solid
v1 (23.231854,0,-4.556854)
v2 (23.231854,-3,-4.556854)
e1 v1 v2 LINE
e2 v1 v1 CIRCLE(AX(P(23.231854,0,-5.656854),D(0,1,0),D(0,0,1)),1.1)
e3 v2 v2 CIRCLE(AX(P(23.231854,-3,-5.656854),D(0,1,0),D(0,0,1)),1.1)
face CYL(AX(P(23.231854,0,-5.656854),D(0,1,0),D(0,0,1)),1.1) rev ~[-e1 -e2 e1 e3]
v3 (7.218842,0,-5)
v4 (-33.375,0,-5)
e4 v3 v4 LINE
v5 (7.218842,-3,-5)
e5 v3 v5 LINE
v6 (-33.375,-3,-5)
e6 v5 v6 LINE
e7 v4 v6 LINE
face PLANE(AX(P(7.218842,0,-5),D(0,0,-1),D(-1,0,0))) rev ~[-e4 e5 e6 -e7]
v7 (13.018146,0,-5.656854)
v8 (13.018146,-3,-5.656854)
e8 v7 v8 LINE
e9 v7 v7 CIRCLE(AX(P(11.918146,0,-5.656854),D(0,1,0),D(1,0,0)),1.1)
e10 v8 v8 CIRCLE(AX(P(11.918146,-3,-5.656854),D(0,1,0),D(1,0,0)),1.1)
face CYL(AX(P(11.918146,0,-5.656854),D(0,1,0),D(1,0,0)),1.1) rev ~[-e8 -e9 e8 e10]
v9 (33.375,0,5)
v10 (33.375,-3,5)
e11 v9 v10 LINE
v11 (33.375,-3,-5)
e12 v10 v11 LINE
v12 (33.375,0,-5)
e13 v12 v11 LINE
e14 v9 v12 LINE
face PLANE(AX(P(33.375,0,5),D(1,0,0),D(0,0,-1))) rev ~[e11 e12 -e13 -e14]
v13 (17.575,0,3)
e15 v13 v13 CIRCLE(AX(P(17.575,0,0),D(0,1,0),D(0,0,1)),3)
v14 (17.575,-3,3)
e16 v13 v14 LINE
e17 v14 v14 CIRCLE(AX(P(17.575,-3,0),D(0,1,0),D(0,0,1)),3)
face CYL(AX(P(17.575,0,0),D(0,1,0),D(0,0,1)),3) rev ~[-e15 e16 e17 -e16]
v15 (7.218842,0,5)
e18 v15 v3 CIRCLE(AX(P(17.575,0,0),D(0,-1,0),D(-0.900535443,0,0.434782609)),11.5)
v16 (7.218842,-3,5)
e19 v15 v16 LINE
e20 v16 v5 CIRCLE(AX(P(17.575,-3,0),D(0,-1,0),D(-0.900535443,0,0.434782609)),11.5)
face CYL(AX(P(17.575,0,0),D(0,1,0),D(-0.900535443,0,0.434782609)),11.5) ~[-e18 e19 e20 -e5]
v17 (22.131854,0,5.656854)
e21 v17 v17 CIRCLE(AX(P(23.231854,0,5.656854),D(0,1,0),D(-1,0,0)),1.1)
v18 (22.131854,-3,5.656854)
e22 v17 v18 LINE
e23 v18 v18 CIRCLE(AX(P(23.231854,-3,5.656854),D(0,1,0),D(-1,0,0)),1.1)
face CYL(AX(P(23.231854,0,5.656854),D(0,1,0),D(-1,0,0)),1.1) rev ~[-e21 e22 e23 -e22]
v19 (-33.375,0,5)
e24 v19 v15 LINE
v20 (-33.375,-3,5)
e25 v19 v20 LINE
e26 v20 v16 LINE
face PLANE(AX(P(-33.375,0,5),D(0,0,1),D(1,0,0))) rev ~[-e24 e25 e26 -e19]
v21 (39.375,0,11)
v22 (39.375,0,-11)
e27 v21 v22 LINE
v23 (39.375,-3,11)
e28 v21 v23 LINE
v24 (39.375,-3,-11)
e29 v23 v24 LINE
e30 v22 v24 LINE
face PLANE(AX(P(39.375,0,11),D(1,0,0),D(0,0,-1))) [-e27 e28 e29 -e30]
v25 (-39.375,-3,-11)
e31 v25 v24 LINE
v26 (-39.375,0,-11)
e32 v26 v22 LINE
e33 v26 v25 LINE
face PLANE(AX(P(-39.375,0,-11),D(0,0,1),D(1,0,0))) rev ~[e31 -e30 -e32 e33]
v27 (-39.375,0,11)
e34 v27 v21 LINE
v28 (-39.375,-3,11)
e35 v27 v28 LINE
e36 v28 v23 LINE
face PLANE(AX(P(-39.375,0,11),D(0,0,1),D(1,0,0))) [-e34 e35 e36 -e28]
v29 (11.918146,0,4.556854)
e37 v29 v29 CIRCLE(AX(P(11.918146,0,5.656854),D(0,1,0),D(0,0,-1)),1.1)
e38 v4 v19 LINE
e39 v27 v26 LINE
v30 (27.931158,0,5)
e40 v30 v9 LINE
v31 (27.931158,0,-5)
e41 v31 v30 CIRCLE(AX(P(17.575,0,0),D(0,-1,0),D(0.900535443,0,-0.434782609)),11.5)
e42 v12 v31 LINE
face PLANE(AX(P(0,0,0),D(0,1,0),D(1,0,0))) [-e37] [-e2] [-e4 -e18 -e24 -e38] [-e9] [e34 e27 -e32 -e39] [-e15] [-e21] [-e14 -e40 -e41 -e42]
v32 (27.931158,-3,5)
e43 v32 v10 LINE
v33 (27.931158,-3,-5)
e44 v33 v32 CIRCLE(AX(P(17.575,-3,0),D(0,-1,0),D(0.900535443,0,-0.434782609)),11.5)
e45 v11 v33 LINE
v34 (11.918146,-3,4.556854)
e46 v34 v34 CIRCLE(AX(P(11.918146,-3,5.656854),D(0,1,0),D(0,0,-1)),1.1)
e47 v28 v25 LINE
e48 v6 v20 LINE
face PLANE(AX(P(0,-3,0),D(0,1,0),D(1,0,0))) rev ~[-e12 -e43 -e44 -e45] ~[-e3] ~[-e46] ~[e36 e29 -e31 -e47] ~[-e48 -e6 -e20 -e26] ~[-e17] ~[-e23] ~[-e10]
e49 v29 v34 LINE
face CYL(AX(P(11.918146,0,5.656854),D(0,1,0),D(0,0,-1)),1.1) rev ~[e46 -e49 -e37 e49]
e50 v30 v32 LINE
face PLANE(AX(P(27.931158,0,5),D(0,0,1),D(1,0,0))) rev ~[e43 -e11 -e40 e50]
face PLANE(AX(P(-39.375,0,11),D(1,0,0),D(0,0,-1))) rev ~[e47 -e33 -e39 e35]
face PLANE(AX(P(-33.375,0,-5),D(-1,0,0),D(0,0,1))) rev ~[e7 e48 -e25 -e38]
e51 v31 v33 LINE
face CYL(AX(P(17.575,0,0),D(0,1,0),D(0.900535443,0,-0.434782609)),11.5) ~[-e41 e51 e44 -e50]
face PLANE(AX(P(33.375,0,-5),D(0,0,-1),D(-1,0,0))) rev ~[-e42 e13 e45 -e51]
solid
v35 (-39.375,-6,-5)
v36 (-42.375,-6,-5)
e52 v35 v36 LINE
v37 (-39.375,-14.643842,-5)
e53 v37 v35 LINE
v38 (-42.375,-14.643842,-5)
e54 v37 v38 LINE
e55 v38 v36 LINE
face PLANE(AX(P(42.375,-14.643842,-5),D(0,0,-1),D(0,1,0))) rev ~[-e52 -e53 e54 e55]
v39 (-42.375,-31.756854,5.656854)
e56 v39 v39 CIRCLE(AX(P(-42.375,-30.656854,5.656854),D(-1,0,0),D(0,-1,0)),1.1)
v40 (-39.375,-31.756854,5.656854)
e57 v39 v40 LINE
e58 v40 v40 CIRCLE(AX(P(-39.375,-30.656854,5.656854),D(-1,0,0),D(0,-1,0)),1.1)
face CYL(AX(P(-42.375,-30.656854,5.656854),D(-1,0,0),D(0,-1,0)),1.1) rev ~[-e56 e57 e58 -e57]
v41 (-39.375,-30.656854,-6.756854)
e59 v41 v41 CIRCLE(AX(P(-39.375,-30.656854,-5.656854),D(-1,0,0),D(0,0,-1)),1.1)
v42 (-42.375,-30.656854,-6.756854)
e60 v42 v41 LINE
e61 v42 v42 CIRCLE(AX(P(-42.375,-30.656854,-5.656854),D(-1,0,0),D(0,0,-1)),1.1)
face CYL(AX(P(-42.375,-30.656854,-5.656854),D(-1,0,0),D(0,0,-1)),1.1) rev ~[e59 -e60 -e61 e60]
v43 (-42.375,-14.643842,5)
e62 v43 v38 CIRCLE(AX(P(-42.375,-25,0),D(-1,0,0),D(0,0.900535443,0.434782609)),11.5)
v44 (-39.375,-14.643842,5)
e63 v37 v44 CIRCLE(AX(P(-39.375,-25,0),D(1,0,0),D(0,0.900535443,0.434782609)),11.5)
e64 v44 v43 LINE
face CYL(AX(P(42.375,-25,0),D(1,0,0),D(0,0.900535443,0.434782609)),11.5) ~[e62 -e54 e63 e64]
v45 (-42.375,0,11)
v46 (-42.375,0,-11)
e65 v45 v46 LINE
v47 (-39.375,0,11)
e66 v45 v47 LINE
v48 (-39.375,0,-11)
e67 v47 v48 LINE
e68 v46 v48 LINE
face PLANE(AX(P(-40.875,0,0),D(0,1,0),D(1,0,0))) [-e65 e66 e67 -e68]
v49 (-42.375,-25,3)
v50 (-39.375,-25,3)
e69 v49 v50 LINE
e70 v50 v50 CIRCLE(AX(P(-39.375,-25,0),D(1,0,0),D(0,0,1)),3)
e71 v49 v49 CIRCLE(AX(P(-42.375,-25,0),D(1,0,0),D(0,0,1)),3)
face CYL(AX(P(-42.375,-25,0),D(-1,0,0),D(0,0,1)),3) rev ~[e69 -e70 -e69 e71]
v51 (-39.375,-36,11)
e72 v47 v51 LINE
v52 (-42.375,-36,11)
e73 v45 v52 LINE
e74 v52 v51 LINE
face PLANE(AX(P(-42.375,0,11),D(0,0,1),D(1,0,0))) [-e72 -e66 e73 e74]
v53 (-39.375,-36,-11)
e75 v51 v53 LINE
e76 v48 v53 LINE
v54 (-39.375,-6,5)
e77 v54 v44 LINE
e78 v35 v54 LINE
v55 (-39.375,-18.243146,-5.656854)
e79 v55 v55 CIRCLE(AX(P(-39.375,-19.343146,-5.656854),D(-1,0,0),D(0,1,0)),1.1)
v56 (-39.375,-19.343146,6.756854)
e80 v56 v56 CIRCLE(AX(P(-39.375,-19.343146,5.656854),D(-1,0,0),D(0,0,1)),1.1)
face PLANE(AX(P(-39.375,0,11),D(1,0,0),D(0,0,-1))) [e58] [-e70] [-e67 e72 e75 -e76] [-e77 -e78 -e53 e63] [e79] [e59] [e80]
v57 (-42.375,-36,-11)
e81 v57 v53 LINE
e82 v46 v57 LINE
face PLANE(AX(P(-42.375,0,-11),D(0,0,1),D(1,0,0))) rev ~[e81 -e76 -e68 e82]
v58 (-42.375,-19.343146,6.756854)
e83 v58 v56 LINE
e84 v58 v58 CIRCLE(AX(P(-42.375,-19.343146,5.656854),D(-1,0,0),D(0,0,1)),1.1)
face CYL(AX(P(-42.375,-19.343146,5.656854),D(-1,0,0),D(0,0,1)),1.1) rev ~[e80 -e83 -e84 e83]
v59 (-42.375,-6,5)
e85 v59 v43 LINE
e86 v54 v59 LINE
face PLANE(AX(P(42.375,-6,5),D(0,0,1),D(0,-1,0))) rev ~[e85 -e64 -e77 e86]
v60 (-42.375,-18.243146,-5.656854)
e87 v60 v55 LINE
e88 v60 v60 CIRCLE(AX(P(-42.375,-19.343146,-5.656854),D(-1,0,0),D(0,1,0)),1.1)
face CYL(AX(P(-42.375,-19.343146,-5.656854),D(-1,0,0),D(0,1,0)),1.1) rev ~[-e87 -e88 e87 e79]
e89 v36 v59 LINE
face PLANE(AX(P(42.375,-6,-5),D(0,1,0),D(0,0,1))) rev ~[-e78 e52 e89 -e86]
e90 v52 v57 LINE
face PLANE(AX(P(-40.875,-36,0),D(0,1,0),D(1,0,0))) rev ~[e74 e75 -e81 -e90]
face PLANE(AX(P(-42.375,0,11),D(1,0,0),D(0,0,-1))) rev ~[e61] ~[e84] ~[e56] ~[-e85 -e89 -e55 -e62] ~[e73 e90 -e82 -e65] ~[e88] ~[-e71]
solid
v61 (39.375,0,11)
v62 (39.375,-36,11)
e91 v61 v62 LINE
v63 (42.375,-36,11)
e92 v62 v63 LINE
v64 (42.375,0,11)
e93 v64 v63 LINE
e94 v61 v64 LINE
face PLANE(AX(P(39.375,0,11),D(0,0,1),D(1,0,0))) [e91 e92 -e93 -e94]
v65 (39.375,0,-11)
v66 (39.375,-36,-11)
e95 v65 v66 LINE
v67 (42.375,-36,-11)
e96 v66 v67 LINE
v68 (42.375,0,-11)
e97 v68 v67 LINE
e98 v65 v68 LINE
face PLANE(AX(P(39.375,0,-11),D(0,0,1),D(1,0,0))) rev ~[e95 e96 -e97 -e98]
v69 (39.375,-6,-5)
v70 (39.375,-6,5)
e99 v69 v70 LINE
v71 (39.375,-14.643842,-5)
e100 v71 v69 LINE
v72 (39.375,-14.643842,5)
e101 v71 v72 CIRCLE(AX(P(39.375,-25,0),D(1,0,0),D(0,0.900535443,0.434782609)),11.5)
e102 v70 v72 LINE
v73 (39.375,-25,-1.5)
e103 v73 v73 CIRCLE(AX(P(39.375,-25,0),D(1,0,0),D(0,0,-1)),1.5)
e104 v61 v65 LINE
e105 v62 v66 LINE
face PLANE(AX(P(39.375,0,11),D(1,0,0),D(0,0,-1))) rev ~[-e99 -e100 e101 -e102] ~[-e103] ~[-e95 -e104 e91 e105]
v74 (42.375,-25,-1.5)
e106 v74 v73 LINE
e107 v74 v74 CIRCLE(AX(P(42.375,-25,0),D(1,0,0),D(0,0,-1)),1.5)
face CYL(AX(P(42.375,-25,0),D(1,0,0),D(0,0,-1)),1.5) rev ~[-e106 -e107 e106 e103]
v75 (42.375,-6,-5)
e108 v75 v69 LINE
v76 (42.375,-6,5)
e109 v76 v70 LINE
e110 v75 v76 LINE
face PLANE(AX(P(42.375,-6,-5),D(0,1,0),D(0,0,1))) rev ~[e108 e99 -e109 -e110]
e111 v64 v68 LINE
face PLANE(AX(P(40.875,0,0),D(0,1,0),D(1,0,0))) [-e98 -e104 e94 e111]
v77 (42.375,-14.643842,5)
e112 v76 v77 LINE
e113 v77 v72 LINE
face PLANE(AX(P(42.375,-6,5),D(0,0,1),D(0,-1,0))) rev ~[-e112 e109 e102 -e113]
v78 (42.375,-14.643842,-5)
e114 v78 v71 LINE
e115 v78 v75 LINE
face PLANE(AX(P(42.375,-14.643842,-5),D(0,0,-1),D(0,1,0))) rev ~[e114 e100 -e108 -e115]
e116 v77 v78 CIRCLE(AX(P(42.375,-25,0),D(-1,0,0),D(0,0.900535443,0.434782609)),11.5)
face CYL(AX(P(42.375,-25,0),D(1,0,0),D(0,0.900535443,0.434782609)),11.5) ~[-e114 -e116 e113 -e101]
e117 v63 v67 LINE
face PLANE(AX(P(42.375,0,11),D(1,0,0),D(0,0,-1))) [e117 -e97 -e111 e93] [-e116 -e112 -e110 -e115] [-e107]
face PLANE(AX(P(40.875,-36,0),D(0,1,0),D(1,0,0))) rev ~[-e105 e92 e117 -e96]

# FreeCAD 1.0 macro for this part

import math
import FreeCAD as App
import Part
import Sketcher

V = App.Vector
Q = App.Units.Quantity


def add_polygon(sketch, points):
    """Adds a closed chain of lines whose ends are joined by coincident constraints."""
    first, n = sketch.GeometryCount, len(points)
    for a, b in zip(points, points[1:] + points[:1]):
        sketch.addGeometry(Part.LineSegment(App.Vector(*a, 0), App.Vector(*b, 0)), False)
    for i in range(n):
        sketch.addConstraint(Sketcher.Constraint("Coincident", first + i, 2, first + (i + 1) % n, 1))

doc = App.newDocument("Part")
body = doc.addObject("PartDesign::Body", "Body")

sketch1 = body.newObject("Sketcher::SketchObject", "Sketch")
sketch1.AttachmentSupport = (doc.getObject("XZ_Plane"), [""])
sketch1.MapMode = "FlatFace"
add_polygon(sketch1, [(-39.4, -11), (-39.4, 11), (39.4, 11), (39.4, -11)])
sketch1.addGeometry(Part.Circle(V(17.6, 0, 0), V(0, 0, 1), 3), False)
sketch1.addGeometry(Part.LineSegment(V(27.9, -5, 0), V(33.4, -5, 0)), False)
sketch1.addGeometry(Part.LineSegment(V(33.4, -5, 0), V(33.4, 5, 0)), False)
sketch1.addGeometry(Part.LineSegment(V(33.4, 5, 0), V(27.9, 5, 0)), False)
sketch1.addGeometry(Part.ArcOfCircle(Part.Circle(V(17.6, 0, 0), V(0, 0, 1), 11.5), math.radians(-26), math.radians(26)), False)
sketch1.addGeometry(Part.LineSegment(V(-33.4, 5, 0), V(-33.4, -5, 0)), False)
sketch1.addGeometry(Part.LineSegment(V(-33.4, -5, 0), V(7.2, -5, 0)), False)
sketch1.addGeometry(Part.ArcOfCircle(Part.Circle(V(17.6, 0, 0), V(0, 0, 1), 11.5), math.radians(154), math.radians(206)), False)
sketch1.addGeometry(Part.LineSegment(V(7.2, 5, 0), V(-33.4, 5, 0)), False)
sketch1.addConstraint([
    Sketcher.Constraint("Coincident", 5, 2, 6, 1),
    Sketcher.Constraint("Coincident", 6, 2, 7, 1),
    Sketcher.Constraint("Coincident", 7, 2, 8, 2),
    Sketcher.Constraint("Coincident", 8, 1, 5, 1),
    Sketcher.Constraint("Coincident", 9, 2, 10, 1),
    Sketcher.Constraint("Coincident", 10, 2, 11, 2),
    Sketcher.Constraint("Coincident", 11, 1, 12, 1),
    Sketcher.Constraint("Coincident", 12, 2, 9, 1),
    Sketcher.Constraint("Vertical", 0),
    Sketcher.Constraint("Horizontal", 1),
    Sketcher.Constraint("Vertical", 2),
    Sketcher.Constraint("Horizontal", 3),
    Sketcher.Constraint("Horizontal", 5),
    Sketcher.Constraint("Vertical", 6),
    Sketcher.Constraint("Horizontal", 7),
    Sketcher.Constraint("Vertical", 9),
    Sketcher.Constraint("Horizontal", 10),
    Sketcher.Constraint("Horizontal", 12),
    Sketcher.Constraint("Coincident", 8, 3, 4, 3),
    Sketcher.Constraint("Coincident", 11, 3, 4, 3),
    Sketcher.Constraint("Equal", 8, 11),
    Sketcher.Constraint("Symmetric", 0, 2, 2, 2, -1, 1),
    Sketcher.Constraint("Symmetric", 6, 2, 9, 2, -1, 1),
    Sketcher.Constraint("Symmetric", 7, 2, 8, 1, -1),
    Sketcher.Constraint("Horizontal", 7, 2, 11, 1),
    Sketcher.Constraint("Diameter", 4, Q("6 mm")),
    Sketcher.Constraint("Radius", 8, Q("11.5 mm")),
    Sketcher.Constraint("DistanceY", 0, 1, 0, 2, Q("22 mm")),
    Sketcher.Constraint("DistanceY", 6, 1, 6, 2, Q("10 mm")),
    Sketcher.Constraint("DistanceX", 5, 2, 2, 2, Q("6 mm")),
    Sketcher.Constraint("DistanceX", 1, 1, 1, 2, Q("78.75 mm")),
    Sketcher.Constraint("DistanceX", 11, 3, 1, 2, Q("21.8 mm")),
])
pad1 = body.newObject("PartDesign::Pad", "Pad")
pad1.Profile = sketch1
pad1.Length = 3

sketch2 = body.newObject("Sketcher::SketchObject", "Sketch001")
sketch2.AttachmentSupport = (doc.getObject("XZ_Plane"), [""])
sketch2.MapMode = "FlatFace"
sketch2.addGeometry(Part.Circle(V(23.2, -5.7, 0), V(0, 0, 1), 1.1), False)
sketch2.addConstraint([
    Sketcher.Constraint("Diameter", 0, Q("2.2 mm")),
    Sketcher.Constraint("DistanceX", -1, 1, 0, 3, Q("23.231854 mm")),
    Sketcher.Constraint("DistanceY", 0, 3, -1, 1, Q("5.656854 mm")),
])
pocket1 = body.newObject("PartDesign::Pocket", "Pocket")
pocket1.Profile = sketch2
pocket1.Length = 3
pocket1.Reversed = True
doc.recompute()

datumline = body.newObject("PartDesign::Line", "DatumLine")
datumline.Placement = App.Placement(V(17.575, 0, 0), App.Rotation(V(0, 0, 1), V(0, 1, 0)))
polarpattern = body.newObject("PartDesign::PolarPattern", "PolarPattern")
polarpattern.Originals = [pocket1]
polarpattern.Axis = (datumline, [""])
polarpattern.Angle = 360
polarpattern.Occurrences = 4
body.Tip = polarpattern
body2 = doc.addObject("PartDesign::Body", "Body001")

sketch3 = body2.newObject("Sketcher::SketchObject", "Sketch002")
sketch3.AttachmentSupport = (doc.getObject("XZ_Plane001"), [""])
sketch3.MapMode = "FlatFace"
add_polygon(sketch3, [(-42.4, -11), (-42.4, 11), (-39.4, 11), (-39.4, -11)])
sketch3.addConstraint([
    Sketcher.Constraint("Vertical", 0),
    Sketcher.Constraint("Horizontal", 1),
    Sketcher.Constraint("Vertical", 2),
    Sketcher.Constraint("Horizontal", 3),
    Sketcher.Constraint("DistanceX", 1, 1, 1, 2, Q("3 mm")),
    Sketcher.Constraint("DistanceY", 0, 1, 0, 2, Q("22 mm")),
    Sketcher.Constraint("DistanceY", -1, 1, 0, 2, Q("11 mm")),
    Sketcher.Constraint("DistanceX", 0, 2, -1, 1, Q("42.375 mm")),
])
pad2 = body2.newObject("PartDesign::Pad", "Pad001")
pad2.Profile = sketch3
pad2.Length = 36

sketch4 = body2.newObject("Sketcher::SketchObject", "Sketch003")
sketch4.AttachmentSupport = (doc.getObject("YZ_Plane001"), [""])
sketch4.MapMode = "FlatFace"
sketch4.AttachmentOffset = App.Placement(V(0, 0, -42.375), App.Rotation())
sketch4.addGeometry([
    Part.Circle(V(-25, 0, 0), V(0, 0, 1), 3),
    Part.Circle(V(-19.3, 5.7, 0), V(0, 0, 1), 1.1),
], False)
sketch4.addConstraint([
    Sketcher.Constraint("PointOnObject", 0, 3, -1),
    Sketcher.Constraint("Diameter", 0, Q("6 mm")),
    Sketcher.Constraint("Diameter", 1, Q("2.2 mm")),
    Sketcher.Constraint("DistanceX", 0, 3, -1, 1, Q("25 mm")),
    Sketcher.Constraint("DistanceX", 1, 3, -1, 1, Q("19.343146 mm")),
    Sketcher.Constraint("DistanceY", -1, 1, 1, 3, Q("5.656854 mm")),
])
pocket2 = body2.newObject("PartDesign::Pocket", "Pocket001")
pocket2.Profile = sketch4
pocket2.Length = 3
pocket2.Reversed = True
doc.recompute()

datumline2 = body2.newObject("PartDesign::Line", "DatumLine001")
datumline2.Placement = App.Placement(V(0, -25, 0), App.Rotation(V(0, 0, 1), V(1, 0, 0)))
polarpattern2 = body2.newObject("PartDesign::PolarPattern", "PolarPattern001")
polarpattern2.Originals = [pocket2]
polarpattern2.Axis = (datumline2, [""])
polarpattern2.Angle = 360
polarpattern2.Occurrences = 4
body2.Tip = polarpattern2
body3 = doc.addObject("PartDesign::Body", "Body002")

sketch5 = body3.newObject("Sketcher::SketchObject", "Sketch004")
sketch5.AttachmentSupport = (doc.getObject("XZ_Plane002"), [""])
sketch5.MapMode = "FlatFace"
add_polygon(sketch5, [(39.4, -11), (39.4, 11), (42.4, 11), (42.4, -11)])
sketch5.addConstraint([
    Sketcher.Constraint("Vertical", 0),
    Sketcher.Constraint("Horizontal", 1),
    Sketcher.Constraint("Vertical", 2),
    Sketcher.Constraint("Horizontal", 3),
    Sketcher.Constraint("DistanceX", 1, 1, 1, 2, Q("3 mm")),
    Sketcher.Constraint("DistanceY", 0, 1, 0, 2, Q("22 mm")),
    Sketcher.Constraint("DistanceY", -1, 1, 0, 2, Q("11 mm")),
    Sketcher.Constraint("DistanceX", -1, 1, 0, 2, Q("39.375 mm")),
])
pad3 = body3.newObject("PartDesign::Pad", "Pad002")
pad3.Profile = sketch5
pad3.Length = 36

sketch6 = body3.newObject("Sketcher::SketchObject", "Sketch005")
sketch6.AttachmentSupport = (doc.getObject("YZ_Plane002"), [""])
sketch6.MapMode = "FlatFace"
sketch6.AttachmentOffset = App.Placement(V(0, 0, 42.375), App.Rotation())
sketch6.addGeometry(Part.Circle(V(-25, 0, 0), V(0, 0, 1), 1.5), False)
sketch6.addConstraint([
    Sketcher.Constraint("PointOnObject", 0, 3, -1),
    Sketcher.Constraint("Diameter", 0, Q("3 mm")),
    Sketcher.Constraint("DistanceX", 0, 3, -1, 1, Q("25 mm")),
])
pocket3 = body3.newObject("PartDesign::Pocket", "Pocket002")
pocket3.Profile = sketch6
pocket3.Length = 3
body4 = doc.addObject("PartDesign::Body", "Body003")

sketch7 = body4.newObject("Sketcher::SketchObject", "Sketch006")
sketch7.AttachmentSupport = (doc.getObject("YZ_Plane003"), [""])
sketch7.MapMode = "FlatFace"
sketch7.AttachmentOffset = App.Placement(V(0, 0, 42.375), App.Rotation())
sketch7.addGeometry([
    Part.LineSegment(V(-6, -5, 0), V(-15, -5, 0)),
    Part.ArcOfCircle(Part.Circle(V(-25, 0, 0), V(0, 0, 1), 12), math.radians(-26), math.radians(26)),
    Part.LineSegment(V(-15, 5, 0), V(-6, 5, 0)),
    Part.LineSegment(V(-6, 5, 0), V(-6, -5, 0)),
], False)
sketch7.addConstraint([
    Sketcher.Constraint("Coincident", 0, 2, 1, 1),
    Sketcher.Constraint("Coincident", 1, 2, 2, 1),
    Sketcher.Constraint("Coincident", 2, 2, 3, 1),
    Sketcher.Constraint("Coincident", 3, 2, 0, 1),
    Sketcher.Constraint("Horizontal", 0),
    Sketcher.Constraint("Horizontal", 2),
    Sketcher.Constraint("Vertical", 3),
    Sketcher.Constraint("Symmetric", 0, 2, 1, 2, -1),
    Sketcher.Constraint("Radius", 1, Q("11.5 mm")),
    Sketcher.Constraint("DistanceY", 3, 2, 3, 1, Q("10 mm")),
    Sketcher.Constraint("DistanceX", 1, 3, -1, 1, Q("25 mm")),
    Sketcher.Constraint("DistanceX", 2, 2, -1, 1, Q("6 mm")),
])
pad4 = body4.newObject("PartDesign::Pad", "Pad003")
pad4.Profile = sketch7
pad4.Length = 84.75
pad4.Reversed = True
doc.recompute()

body5 = doc.addObject("PartDesign::Body", "Body004")
body5.BaseFeature = body4
boolean = body2.newObject("PartDesign::Boolean", "Boolean")
boolean.Type = "Cut"
boolean.addObjects([body5])
doc.recompute()

boolean2 = body3.newObject("PartDesign::Boolean", "Boolean001")
boolean2.Type = "Cut"
boolean2.addObjects([body4])

doc.recompute()
